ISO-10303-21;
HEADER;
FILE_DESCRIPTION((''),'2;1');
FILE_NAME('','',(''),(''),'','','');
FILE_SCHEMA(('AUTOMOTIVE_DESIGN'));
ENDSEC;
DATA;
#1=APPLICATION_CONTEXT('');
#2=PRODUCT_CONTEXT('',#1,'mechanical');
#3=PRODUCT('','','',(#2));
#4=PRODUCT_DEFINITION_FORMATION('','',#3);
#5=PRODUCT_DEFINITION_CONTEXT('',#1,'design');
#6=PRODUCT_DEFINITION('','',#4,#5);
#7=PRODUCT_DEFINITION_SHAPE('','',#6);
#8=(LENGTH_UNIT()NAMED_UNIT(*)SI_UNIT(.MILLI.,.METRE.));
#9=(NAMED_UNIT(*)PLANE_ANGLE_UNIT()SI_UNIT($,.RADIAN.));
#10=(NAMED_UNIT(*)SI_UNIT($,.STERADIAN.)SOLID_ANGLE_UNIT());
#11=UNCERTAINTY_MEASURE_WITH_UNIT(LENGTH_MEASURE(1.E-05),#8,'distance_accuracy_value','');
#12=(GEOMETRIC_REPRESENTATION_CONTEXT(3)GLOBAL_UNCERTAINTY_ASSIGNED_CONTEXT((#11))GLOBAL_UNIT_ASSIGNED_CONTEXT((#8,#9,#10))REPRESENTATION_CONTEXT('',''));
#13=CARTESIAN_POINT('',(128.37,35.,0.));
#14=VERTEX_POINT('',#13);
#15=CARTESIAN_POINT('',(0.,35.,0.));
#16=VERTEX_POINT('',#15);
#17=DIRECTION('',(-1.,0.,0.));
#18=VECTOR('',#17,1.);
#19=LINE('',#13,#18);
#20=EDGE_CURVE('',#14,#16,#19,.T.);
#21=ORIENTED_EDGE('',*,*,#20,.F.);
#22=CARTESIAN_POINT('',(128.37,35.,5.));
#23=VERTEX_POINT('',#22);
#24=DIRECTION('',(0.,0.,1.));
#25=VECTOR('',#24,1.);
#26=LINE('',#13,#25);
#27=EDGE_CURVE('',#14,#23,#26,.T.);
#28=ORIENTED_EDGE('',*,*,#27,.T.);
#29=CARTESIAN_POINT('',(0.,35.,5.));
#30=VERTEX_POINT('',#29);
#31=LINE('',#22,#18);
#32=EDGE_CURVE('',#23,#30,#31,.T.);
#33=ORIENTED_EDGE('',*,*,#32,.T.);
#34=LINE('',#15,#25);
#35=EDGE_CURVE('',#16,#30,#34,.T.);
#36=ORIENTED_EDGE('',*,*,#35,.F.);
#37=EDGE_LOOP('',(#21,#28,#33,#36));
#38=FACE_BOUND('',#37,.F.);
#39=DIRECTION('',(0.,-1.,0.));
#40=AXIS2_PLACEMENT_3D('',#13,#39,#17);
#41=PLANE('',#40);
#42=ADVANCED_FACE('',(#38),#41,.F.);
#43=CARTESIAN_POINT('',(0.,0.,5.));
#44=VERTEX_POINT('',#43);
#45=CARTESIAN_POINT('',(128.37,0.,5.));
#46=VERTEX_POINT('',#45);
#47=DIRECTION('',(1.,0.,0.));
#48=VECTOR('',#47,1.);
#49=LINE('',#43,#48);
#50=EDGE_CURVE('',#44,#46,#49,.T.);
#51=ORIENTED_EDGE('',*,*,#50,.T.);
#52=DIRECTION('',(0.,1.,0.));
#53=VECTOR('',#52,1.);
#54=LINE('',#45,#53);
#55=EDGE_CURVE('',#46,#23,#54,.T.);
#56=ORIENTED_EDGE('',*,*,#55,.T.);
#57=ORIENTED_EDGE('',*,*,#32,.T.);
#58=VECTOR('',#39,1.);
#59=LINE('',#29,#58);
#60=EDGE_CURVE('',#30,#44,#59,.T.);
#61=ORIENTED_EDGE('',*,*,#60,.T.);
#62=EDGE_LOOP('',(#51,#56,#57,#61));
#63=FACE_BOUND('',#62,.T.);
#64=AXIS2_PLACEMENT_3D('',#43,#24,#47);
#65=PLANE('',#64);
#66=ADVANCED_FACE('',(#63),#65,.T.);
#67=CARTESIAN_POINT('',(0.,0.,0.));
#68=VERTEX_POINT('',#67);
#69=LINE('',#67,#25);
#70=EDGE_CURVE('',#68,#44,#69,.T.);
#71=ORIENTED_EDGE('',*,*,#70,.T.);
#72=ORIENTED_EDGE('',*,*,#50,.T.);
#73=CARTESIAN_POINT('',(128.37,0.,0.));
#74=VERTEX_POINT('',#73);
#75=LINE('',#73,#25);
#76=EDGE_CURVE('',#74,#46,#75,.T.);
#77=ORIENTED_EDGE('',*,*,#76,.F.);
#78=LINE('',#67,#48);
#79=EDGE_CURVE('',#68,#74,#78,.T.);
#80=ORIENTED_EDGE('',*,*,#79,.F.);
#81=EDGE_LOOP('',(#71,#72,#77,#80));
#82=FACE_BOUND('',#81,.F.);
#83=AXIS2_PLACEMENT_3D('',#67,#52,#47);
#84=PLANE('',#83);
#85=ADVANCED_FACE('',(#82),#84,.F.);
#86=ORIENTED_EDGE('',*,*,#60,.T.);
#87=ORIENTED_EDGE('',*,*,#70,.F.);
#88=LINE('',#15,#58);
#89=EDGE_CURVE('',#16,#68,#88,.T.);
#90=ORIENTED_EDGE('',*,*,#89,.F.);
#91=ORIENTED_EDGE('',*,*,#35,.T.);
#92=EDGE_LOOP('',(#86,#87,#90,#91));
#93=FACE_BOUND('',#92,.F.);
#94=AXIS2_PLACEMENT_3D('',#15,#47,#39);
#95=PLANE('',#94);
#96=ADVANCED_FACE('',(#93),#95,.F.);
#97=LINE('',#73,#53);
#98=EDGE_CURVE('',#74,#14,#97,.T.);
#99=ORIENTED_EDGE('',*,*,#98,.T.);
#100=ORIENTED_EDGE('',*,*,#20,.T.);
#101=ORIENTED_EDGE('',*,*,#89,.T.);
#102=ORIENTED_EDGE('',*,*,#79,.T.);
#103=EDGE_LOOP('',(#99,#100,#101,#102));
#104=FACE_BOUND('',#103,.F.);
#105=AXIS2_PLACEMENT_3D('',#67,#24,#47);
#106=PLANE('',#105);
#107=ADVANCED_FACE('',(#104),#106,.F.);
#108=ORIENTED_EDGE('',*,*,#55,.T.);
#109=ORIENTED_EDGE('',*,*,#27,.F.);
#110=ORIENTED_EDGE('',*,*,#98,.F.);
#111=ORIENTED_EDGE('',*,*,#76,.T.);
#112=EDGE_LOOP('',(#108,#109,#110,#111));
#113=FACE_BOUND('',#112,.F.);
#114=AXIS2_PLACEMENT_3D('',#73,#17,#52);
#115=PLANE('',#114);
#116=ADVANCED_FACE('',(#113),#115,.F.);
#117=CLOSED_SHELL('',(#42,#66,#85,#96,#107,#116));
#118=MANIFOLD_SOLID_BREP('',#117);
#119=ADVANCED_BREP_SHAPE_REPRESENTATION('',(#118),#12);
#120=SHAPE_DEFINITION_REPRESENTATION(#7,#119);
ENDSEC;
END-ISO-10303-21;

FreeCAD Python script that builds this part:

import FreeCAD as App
import Part
import Sketcher
Q = App.Units.Quantity


def add_polygon(sketch, points):
    """Adds a closed chain of lines whose ends are joined by coincident constraints."""
    first, n = sketch.GeometryCount, len(points)
    for a, b in zip(points, points[1:] + points[:1]):
        sketch.addGeometry(Part.LineSegment(App.Vector(*a, 0), App.Vector(*b, 0)), False)
    for i in range(n):
        sketch.addConstraint(Sketcher.Constraint("Coincident", first + i, 2, first + (i + 1) % n, 1))

doc = App.newDocument("Part")
body = doc.addObject("PartDesign::Body", "Body")

sketch1 = body.newObject("Sketcher::SketchObject", "Sketch")
sketch1.AttachmentSupport = (doc.getObject("XY_Plane"), [""])
sketch1.MapMode = "FlatFace"
add_polygon(sketch1, [(0, 35), (0, 0), (128, 0), (128, 35)])
sketch1.addConstraint([
    Sketcher.Constraint("Vertical", 0),
    Sketcher.Constraint("Horizontal", 1),
    Sketcher.Constraint("Vertical", 2),
    Sketcher.Constraint("Horizontal", 3),
    Sketcher.Constraint("Coincident", 0, 2, -1, 1),
    Sketcher.Constraint("DistanceY", 0, 2, 0, 1, Q("35 mm")),
    Sketcher.Constraint("DistanceX", 1, 1, 1, 2, Q("128.37 mm")),
])
pad1 = body.newObject("PartDesign::Pad", "Pad")
pad1.Profile = sketch1
pad1.Length = 5

doc.recompute()
